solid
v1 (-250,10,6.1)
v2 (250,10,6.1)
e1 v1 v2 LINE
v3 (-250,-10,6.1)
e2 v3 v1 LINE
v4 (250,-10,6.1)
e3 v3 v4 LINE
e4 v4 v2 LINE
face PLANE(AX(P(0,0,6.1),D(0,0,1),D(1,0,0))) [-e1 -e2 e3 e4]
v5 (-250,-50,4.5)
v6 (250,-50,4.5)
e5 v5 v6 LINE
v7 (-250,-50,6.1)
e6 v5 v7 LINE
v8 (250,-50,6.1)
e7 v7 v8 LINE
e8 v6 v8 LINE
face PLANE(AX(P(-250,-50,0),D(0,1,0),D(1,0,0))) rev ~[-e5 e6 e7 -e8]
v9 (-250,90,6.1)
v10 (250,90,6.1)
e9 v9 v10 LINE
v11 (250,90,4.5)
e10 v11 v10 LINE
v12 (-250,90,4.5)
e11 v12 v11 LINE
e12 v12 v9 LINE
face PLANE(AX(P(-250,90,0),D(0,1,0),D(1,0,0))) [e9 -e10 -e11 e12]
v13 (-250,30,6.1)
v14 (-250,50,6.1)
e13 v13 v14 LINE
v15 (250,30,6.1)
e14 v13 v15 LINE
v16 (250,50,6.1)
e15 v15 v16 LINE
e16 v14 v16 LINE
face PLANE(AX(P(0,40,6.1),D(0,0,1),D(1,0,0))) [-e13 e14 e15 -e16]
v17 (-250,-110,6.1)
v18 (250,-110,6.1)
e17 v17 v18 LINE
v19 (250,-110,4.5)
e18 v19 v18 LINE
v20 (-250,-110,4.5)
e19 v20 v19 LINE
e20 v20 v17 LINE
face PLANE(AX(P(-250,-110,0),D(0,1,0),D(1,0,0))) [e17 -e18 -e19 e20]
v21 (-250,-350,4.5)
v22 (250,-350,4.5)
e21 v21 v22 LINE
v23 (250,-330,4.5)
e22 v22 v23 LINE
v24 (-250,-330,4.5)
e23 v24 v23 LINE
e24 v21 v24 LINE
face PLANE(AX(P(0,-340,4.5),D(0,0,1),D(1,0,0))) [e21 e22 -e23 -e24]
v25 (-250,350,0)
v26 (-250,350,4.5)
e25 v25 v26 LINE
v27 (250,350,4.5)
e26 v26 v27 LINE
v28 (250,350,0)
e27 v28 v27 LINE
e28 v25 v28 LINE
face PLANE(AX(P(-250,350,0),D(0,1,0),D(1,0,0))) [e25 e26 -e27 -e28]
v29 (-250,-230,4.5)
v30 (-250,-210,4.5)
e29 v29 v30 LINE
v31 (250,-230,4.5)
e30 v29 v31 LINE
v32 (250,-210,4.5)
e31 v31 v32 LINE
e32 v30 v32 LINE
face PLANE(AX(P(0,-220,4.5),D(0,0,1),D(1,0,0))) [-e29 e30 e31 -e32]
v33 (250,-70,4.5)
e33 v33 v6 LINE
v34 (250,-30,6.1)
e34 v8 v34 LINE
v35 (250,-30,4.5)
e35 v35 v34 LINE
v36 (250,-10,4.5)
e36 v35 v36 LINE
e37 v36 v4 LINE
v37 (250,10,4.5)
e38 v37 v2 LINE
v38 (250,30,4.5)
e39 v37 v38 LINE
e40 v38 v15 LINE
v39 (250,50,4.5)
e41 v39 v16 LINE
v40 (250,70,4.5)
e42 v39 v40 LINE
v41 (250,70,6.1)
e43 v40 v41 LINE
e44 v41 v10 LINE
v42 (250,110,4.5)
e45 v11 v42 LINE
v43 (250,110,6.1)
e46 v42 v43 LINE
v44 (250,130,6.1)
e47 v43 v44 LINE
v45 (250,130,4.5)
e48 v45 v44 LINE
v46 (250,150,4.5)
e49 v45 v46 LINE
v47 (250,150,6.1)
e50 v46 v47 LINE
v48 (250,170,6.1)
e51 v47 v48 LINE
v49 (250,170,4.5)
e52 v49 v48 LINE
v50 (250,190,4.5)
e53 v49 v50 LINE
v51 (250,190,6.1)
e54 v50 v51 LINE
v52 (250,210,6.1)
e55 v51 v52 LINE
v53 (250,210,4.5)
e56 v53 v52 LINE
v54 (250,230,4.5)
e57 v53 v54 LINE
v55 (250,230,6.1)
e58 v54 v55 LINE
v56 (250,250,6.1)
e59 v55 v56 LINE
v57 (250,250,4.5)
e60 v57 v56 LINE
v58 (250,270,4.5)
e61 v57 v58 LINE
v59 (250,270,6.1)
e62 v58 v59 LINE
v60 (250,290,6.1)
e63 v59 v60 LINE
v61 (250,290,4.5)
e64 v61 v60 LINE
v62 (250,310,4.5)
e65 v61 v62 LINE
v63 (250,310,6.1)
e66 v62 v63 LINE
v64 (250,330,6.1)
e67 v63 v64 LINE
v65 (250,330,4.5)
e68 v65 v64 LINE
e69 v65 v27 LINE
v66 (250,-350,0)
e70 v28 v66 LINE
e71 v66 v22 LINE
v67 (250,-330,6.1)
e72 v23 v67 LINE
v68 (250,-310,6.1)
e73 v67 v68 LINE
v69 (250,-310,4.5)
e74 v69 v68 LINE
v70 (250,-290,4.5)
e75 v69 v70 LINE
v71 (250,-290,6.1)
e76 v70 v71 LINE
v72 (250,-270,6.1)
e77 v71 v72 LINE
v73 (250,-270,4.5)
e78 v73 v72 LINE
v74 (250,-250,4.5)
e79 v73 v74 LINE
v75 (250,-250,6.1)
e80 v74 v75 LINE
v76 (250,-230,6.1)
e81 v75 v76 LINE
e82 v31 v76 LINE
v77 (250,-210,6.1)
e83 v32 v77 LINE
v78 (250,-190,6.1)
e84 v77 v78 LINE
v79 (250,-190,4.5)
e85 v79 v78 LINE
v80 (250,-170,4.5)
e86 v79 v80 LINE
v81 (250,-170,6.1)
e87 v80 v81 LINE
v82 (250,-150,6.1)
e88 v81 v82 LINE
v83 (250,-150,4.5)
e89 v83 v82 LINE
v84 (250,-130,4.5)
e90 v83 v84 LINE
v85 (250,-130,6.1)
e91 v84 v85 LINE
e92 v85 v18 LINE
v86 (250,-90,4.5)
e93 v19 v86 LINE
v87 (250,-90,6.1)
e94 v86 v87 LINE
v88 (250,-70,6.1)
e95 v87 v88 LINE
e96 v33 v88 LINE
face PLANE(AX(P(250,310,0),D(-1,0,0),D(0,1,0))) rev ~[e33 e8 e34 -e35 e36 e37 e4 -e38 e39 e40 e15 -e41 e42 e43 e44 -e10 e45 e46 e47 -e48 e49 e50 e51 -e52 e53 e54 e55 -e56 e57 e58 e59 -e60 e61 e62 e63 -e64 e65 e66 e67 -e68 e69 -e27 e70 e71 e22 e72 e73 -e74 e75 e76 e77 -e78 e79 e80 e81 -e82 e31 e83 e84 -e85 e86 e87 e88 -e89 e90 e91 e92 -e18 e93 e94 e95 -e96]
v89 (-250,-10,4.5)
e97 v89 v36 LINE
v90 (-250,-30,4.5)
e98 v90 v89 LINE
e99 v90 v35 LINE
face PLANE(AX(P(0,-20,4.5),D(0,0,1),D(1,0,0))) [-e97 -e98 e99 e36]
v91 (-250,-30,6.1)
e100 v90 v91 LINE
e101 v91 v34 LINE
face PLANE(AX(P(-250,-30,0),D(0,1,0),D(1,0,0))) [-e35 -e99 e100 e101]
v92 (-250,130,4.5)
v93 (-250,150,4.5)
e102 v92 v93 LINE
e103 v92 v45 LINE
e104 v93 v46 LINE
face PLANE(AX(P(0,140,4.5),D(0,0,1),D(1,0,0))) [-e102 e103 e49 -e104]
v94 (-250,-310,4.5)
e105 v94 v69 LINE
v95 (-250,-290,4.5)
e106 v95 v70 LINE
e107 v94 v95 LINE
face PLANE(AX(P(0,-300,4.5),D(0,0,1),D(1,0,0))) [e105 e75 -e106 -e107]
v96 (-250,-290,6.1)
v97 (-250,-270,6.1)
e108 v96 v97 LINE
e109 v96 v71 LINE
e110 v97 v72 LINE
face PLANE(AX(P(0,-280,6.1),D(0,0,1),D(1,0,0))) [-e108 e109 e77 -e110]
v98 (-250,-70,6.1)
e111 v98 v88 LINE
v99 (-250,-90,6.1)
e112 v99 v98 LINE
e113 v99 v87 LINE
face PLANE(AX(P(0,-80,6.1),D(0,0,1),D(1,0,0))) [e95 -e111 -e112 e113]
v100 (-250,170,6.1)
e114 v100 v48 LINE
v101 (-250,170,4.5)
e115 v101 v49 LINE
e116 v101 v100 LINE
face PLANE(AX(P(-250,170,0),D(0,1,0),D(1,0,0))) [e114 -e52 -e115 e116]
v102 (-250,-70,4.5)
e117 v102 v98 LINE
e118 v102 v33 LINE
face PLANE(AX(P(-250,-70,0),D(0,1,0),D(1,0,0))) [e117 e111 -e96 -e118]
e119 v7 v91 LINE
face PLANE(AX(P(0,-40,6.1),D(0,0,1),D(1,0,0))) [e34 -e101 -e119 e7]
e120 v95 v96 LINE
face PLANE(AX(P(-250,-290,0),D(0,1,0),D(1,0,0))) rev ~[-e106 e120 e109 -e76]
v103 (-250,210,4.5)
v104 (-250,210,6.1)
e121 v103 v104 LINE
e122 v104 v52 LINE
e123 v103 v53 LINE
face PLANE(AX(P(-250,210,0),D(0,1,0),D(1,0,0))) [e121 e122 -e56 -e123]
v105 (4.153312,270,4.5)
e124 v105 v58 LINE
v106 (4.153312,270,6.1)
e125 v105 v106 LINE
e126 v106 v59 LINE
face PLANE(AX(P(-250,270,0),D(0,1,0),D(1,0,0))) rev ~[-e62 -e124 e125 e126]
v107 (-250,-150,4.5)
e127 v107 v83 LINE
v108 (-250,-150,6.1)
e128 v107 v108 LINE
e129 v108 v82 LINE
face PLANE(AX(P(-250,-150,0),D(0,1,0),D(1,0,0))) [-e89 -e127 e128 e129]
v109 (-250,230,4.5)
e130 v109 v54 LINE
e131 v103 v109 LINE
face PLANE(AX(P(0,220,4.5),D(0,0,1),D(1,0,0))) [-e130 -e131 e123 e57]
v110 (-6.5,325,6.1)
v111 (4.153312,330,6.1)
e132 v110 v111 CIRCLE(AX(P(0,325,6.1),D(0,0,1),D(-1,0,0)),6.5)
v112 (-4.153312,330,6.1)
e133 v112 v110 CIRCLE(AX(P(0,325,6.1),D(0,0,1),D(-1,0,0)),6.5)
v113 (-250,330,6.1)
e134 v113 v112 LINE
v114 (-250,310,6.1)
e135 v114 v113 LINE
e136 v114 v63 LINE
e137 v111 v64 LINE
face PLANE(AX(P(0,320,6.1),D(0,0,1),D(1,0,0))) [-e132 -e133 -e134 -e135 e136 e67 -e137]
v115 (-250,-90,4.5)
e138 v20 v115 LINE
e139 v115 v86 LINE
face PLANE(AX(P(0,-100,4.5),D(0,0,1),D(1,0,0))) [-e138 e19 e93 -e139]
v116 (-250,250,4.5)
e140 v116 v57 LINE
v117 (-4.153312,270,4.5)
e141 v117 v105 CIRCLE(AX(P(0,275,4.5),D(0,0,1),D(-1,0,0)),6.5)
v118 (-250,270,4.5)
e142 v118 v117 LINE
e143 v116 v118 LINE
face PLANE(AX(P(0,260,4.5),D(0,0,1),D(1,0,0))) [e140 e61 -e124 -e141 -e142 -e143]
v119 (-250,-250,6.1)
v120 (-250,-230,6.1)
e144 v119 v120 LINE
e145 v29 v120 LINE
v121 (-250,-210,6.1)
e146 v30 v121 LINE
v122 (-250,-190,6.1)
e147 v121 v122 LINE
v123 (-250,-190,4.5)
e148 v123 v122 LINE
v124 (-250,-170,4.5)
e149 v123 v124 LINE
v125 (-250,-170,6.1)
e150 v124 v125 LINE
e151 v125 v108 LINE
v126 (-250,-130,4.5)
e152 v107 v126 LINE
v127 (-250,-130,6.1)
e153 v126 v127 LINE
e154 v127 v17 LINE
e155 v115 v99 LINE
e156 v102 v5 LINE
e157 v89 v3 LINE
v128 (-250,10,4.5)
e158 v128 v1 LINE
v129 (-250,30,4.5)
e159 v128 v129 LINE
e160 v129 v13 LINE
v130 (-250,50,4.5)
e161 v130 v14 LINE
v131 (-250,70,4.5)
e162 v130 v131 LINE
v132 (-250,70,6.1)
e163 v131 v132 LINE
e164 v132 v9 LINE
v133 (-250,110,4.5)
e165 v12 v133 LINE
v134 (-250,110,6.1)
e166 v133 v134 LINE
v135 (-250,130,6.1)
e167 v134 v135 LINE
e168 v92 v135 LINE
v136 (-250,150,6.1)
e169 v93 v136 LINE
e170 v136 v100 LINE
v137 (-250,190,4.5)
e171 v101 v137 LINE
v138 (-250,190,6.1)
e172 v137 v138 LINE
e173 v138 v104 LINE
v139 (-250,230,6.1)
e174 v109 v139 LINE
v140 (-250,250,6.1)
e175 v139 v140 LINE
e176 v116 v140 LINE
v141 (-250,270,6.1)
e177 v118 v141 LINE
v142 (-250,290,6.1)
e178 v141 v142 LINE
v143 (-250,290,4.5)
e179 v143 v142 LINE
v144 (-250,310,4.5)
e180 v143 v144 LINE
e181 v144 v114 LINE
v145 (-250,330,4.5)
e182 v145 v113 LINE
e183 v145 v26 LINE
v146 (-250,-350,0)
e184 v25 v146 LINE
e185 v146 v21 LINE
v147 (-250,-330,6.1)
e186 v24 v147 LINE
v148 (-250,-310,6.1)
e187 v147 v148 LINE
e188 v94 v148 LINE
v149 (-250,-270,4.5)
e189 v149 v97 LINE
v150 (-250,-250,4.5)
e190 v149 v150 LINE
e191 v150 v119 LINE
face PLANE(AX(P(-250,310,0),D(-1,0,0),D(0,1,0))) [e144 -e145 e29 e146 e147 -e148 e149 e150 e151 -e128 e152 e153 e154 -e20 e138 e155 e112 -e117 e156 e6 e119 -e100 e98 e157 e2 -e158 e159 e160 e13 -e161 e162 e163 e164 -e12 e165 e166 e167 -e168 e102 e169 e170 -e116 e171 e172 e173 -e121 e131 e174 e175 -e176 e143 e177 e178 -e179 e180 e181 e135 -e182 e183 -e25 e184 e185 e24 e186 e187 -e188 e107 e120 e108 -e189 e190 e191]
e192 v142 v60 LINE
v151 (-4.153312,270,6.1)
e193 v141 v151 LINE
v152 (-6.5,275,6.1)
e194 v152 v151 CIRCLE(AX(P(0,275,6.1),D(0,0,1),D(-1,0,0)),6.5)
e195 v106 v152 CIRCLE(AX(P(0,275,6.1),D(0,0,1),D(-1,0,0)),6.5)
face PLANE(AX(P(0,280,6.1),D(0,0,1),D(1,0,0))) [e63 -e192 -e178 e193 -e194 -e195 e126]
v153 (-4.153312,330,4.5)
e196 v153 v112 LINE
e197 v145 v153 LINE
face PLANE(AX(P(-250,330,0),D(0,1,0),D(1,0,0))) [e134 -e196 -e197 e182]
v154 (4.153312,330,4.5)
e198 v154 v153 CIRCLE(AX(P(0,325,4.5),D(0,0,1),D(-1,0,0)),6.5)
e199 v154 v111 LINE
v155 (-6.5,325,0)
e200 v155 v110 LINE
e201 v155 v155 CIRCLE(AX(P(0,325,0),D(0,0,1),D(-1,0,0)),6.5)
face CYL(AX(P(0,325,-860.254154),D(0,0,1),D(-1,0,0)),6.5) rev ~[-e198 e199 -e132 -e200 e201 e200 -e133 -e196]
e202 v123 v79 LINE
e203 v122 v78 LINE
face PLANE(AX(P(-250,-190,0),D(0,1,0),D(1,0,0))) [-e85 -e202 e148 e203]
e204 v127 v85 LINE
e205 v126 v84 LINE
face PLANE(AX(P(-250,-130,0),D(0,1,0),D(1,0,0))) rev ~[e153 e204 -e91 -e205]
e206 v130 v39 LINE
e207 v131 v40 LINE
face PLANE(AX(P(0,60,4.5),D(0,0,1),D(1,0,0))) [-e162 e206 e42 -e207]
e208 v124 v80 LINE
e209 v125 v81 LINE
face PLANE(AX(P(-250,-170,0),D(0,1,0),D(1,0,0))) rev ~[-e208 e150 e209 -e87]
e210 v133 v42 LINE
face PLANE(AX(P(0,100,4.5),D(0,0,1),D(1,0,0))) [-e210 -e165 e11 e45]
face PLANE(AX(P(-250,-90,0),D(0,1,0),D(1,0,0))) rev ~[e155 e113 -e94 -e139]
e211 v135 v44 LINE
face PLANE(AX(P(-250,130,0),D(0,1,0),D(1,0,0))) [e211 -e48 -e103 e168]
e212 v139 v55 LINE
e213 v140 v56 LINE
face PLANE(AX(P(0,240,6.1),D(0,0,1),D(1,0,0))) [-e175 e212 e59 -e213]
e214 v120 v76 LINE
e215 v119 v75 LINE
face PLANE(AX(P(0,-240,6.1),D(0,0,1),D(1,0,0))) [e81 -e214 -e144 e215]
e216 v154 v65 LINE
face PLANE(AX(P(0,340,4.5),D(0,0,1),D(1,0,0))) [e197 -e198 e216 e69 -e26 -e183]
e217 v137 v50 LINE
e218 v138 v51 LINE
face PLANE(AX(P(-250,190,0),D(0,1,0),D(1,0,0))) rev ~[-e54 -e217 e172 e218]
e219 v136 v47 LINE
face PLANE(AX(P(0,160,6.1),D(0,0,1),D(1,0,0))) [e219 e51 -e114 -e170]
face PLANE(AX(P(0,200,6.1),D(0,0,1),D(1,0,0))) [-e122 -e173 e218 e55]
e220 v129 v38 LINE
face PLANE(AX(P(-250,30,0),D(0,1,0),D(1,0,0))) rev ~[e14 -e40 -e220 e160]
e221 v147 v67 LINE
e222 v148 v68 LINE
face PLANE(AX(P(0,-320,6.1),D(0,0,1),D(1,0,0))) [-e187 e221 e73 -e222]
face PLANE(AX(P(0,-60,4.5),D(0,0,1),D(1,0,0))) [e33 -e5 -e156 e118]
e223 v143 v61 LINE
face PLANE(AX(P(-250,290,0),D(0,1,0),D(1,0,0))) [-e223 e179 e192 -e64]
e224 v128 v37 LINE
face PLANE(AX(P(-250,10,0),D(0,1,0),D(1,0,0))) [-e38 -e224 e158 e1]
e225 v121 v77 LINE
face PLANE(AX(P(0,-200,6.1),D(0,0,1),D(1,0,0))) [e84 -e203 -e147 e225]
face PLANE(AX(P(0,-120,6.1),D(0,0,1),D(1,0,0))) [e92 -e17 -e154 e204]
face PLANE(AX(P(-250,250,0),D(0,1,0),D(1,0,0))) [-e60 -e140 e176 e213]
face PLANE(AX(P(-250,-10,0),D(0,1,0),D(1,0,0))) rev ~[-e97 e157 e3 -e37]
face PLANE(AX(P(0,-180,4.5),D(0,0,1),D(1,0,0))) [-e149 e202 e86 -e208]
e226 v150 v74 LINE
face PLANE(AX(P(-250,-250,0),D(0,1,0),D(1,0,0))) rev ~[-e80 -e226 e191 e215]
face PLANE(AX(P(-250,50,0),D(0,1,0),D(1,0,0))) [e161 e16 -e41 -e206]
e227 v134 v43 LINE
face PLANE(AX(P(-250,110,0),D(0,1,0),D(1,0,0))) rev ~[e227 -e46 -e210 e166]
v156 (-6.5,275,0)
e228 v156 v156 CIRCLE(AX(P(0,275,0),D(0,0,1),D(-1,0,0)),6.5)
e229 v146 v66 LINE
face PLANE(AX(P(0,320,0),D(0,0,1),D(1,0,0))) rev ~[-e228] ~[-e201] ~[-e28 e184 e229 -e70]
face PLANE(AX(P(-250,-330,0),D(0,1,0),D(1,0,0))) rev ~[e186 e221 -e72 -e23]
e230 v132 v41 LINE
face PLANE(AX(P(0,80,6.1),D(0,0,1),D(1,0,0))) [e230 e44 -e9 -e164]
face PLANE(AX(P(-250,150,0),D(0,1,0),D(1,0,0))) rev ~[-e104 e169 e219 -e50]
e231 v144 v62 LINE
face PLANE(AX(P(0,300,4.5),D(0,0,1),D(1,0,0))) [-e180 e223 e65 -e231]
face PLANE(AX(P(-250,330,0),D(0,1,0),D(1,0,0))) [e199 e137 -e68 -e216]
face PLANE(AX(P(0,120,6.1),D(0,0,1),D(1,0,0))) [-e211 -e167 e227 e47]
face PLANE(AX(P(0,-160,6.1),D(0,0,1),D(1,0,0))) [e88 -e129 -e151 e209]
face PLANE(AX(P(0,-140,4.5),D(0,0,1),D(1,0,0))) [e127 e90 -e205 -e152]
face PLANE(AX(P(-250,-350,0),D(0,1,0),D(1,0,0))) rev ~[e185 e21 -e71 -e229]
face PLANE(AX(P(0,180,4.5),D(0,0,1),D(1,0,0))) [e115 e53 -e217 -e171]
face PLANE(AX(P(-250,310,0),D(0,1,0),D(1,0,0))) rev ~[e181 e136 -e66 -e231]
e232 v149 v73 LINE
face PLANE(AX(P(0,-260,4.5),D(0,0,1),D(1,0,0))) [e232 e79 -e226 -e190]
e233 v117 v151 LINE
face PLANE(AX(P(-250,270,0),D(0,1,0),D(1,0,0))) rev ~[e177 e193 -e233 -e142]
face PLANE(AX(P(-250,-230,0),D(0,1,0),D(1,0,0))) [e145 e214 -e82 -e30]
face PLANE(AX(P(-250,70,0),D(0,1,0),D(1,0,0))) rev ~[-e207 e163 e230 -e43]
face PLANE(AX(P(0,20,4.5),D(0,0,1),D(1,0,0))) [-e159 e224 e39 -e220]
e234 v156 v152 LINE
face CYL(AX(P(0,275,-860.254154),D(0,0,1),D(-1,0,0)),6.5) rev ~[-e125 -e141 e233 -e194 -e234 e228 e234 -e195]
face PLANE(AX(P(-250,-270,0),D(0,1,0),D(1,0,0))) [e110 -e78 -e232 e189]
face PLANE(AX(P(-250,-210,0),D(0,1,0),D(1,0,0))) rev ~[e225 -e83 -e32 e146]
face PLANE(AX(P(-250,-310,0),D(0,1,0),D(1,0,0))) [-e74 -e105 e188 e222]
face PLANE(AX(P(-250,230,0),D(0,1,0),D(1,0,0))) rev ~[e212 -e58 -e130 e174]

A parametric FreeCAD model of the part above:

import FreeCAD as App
import Part
import Sketcher
Q = App.Units.Quantity


def add_polygon(sketch, points):
    """Adds a closed chain of lines whose ends are joined by coincident constraints."""
    first, n = sketch.GeometryCount, len(points)
    for a, b in zip(points, points[1:] + points[:1]):
        sketch.addGeometry(Part.LineSegment(App.Vector(*a, 0), App.Vector(*b, 0)), False)
    for i in range(n):
        sketch.addConstraint(Sketcher.Constraint("Coincident", first + i, 2, first + (i + 1) % n, 1))

doc = App.newDocument("Part")
params = doc.addObject("Spreadsheet::Sheet", "Params")
for row, (alias, value) in enumerate([
    ("sketch1_width", "500 mm"),
    ("sketch1_height", "20 mm"),
    ("pad1_length", "4.5 mm"),
    ("sketch2_width", "500 mm"),
    ("sketch2_height", "20 mm"),
    ("pad2_length", "4.5 mm"),
    ("sketch3_width", "500 mm"),
    ("sketch3_height", "20 mm"),
    ("pad3_length", "4.5 mm"),
    ("sketch4_width", "500 mm"),
    ("sketch4_height", "20 mm"),
    ("pad4_length", "4.5 mm"),
    ("sketch5_width", "500 mm"),
    ("sketch5_height", "20 mm"),
    ("pad5_length", "4.5 mm"),
    ("sketch6_width", "500 mm"),
    ("sketch6_height", "20 mm"),
    ("pad6_length", "4.5 mm"),
    ("sketch7_width", "500 mm"),
    ("sketch7_height", "20 mm"),
    ("pad7_length", "4.5 mm"),
    ("sketch8_width", "500 mm"),
    ("sketch8_height", "20 mm"),
    ("pad8_length", "4.5 mm"),
    ("sketch9_width", "500 mm"),
    ("sketch9_height", "20 mm"),
    ("pad9_length", "4.5 mm"),
    ("sketch10_width", "500 mm"),
    ("sketch10_height", "20 mm"),
    ("pad10_length", "4.5 mm"),
    ("sketch11_width", "500 mm"),
    ("sketch11_height", "20 mm"),
    ("pad11_length", "4.5 mm"),
    ("sketch12_width", "500 mm"),
    ("sketch12_height", "20 mm"),
    ("pad12_length", "4.5 mm"),
    ("sketch13_width", "500 mm"),
    ("sketch13_height", "20 mm"),
    ("pad13_length", "4.5 mm"),
    ("sketch14_width", "500 mm"),
    ("sketch14_height", "20 mm"),
    ("pad14_length", "4.5 mm"),
    ("sketch15_width", "500 mm"),
    ("sketch15_height", "20 mm"),
    ("pad15_length", "4.5 mm"),
    ("sketch16_width", "500 mm"),
    ("sketch16_height", "20 mm"),
    ("pad16_length", "4.5 mm"),
    ("sketch17_width", "500 mm"),
    ("sketch17_height", "20 mm"),
    ("pad17_length", "4.5 mm"),
    ("sketch18_width", "500 mm"),
    ("sketch18_height", "20 mm"),
    ("pad18_length", "4.5 mm"),
    ("sketch19_width", "500 mm"),
    ("sketch19_height", "20 mm"),
    ("pad19_length", "6.1 mm"),
    ("sketch20_diameter", "13 mm"),
    ("hole_diameter", "13 mm"),
], start=1):
    params.set(f"A{row}", alias)
    params.set(f"B{row}", "=" + value)
    params.setAlias(f"B{row}", alias)

body = doc.addObject("PartDesign::Body", "Body")

# Sketch on XY plane
sketch1 = doc.addObject("Sketcher::SketchObject", "Sketch")
body.addObject(sketch1)
sketch1.AttachmentSupport = (doc.XY_Plane, [""])
sketch1.MapMode = "FlatFace"
add_polygon(sketch1, [(-250, 350), (-250, 330), (250, 330), (250, 350)])  # lines 0-3
sketch1.addConstraint(Sketcher.Constraint("Vertical", 0))
sketch1.addConstraint(Sketcher.Constraint("Horizontal", 1))
sketch1.addConstraint(Sketcher.Constraint("Vertical", 2))
sketch1.addConstraint(Sketcher.Constraint("Horizontal", 3))
sketch1.addConstraint(Sketcher.Constraint("DistanceX", 1, 1, 1, 2, Q("500 mm")))
sketch1.addConstraint(Sketcher.Constraint("DistanceY", 0, 2, 0, 1, Q("20 mm")))
sketch1.addConstraint(Sketcher.Constraint("DistanceX", 0, 2, -1, 1, Q("250 mm")))
sketch1.addConstraint(Sketcher.Constraint("DistanceY", -1, 1, 0, 2, Q("330 mm")))
sketch1.setExpression("Constraints[8]", "Params.sketch1_width")
sketch1.setExpression("Constraints[9]", "Params.sketch1_height")
pad1 = doc.addObject("PartDesign::Pad", "Pad")
body.addObject(pad1)
pad1.Profile = sketch1
pad1.setExpression("Length", "Params.pad1_length")
body2 = doc.addObject("PartDesign::Body", "Body001")

# Sketch on XY plane
sketch2 = doc.addObject("Sketcher::SketchObject", "Sketch001")
body2.addObject(sketch2)
sketch2.AttachmentSupport = (doc.getObject("XY_Plane001"), [""])
sketch2.MapMode = "FlatFace"
add_polygon(sketch2, [(-250, 310), (-250, 290), (250, 290), (250, 310)])  # lines 0-3
sketch2.addConstraint(Sketcher.Constraint("Vertical", 0))
sketch2.addConstraint(Sketcher.Constraint("Horizontal", 1))
sketch2.addConstraint(Sketcher.Constraint("Vertical", 2))
sketch2.addConstraint(Sketcher.Constraint("Horizontal", 3))
sketch2.addConstraint(Sketcher.Constraint("DistanceX", 1, 1, 1, 2, Q("500 mm")))
sketch2.addConstraint(Sketcher.Constraint("DistanceY", 0, 2, 0, 1, Q("20 mm")))
sketch2.addConstraint(Sketcher.Constraint("DistanceX", 0, 2, -1, 1, Q("250 mm")))
sketch2.addConstraint(Sketcher.Constraint("DistanceY", -1, 1, 0, 2, Q("290 mm")))
sketch2.setExpression("Constraints[8]", "Params.sketch2_width")
sketch2.setExpression("Constraints[9]", "Params.sketch2_height")
pad2 = doc.addObject("PartDesign::Pad", "Pad001")
body2.addObject(pad2)
pad2.Profile = sketch2
pad2.setExpression("Length", "Params.pad2_length")
body3 = doc.addObject("PartDesign::Body", "Body002")

# Sketch on XY plane
sketch3 = doc.addObject("Sketcher::SketchObject", "Sketch002")
body3.addObject(sketch3)
sketch3.AttachmentSupport = (doc.getObject("XY_Plane002"), [""])
sketch3.MapMode = "FlatFace"
add_polygon(sketch3, [(-250, 270), (-250, 250), (250, 250), (250, 270)])  # lines 0-3
sketch3.addConstraint(Sketcher.Constraint("Vertical", 0))
sketch3.addConstraint(Sketcher.Constraint("Horizontal", 1))
sketch3.addConstraint(Sketcher.Constraint("Vertical", 2))
sketch3.addConstraint(Sketcher.Constraint("Horizontal", 3))
sketch3.addConstraint(Sketcher.Constraint("DistanceX", 1, 1, 1, 2, Q("500 mm")))
sketch3.addConstraint(Sketcher.Constraint("DistanceY", 0, 2, 0, 1, Q("20 mm")))
sketch3.addConstraint(Sketcher.Constraint("DistanceX", 0, 2, -1, 1, Q("250 mm")))
sketch3.addConstraint(Sketcher.Constraint("DistanceY", -1, 1, 0, 2, Q("250 mm")))
sketch3.setExpression("Constraints[8]", "Params.sketch3_width")
sketch3.setExpression("Constraints[9]", "Params.sketch3_height")
pad3 = doc.addObject("PartDesign::Pad", "Pad002")
body3.addObject(pad3)
pad3.Profile = sketch3
pad3.setExpression("Length", "Params.pad3_length")
body4 = doc.addObject("PartDesign::Body", "Body003")

# Sketch on XY plane
sketch4 = doc.addObject("Sketcher::SketchObject", "Sketch003")
body4.addObject(sketch4)
sketch4.AttachmentSupport = (doc.getObject("XY_Plane003"), [""])
sketch4.MapMode = "FlatFace"
add_polygon(sketch4, [(-250, 230), (-250, 210), (250, 210), (250, 230)])  # lines 0-3
sketch4.addConstraint(Sketcher.Constraint("Vertical", 0))
sketch4.addConstraint(Sketcher.Constraint("Horizontal", 1))
sketch4.addConstraint(Sketcher.Constraint("Vertical", 2))
sketch4.addConstraint(Sketcher.Constraint("Horizontal", 3))
sketch4.addConstraint(Sketcher.Constraint("DistanceX", 1, 1, 1, 2, Q("500 mm")))
sketch4.addConstraint(Sketcher.Constraint("DistanceY", 0, 2, 0, 1, Q("20 mm")))
sketch4.addConstraint(Sketcher.Constraint("DistanceX", 0, 2, -1, 1, Q("250 mm")))
sketch4.addConstraint(Sketcher.Constraint("DistanceY", -1, 1, 0, 2, Q("210 mm")))
sketch4.setExpression("Constraints[8]", "Params.sketch4_width")
sketch4.setExpression("Constraints[9]", "Params.sketch4_height")
pad4 = doc.addObject("PartDesign::Pad", "Pad003")
body4.addObject(pad4)
pad4.Profile = sketch4
pad4.setExpression("Length", "Params.pad4_length")
body5 = doc.addObject("PartDesign::Body", "Body004")

# Sketch on XY plane
sketch5 = doc.addObject("Sketcher::SketchObject", "Sketch004")
body5.addObject(sketch5)
sketch5.AttachmentSupport = (doc.getObject("XY_Plane004"), [""])
sketch5.MapMode = "FlatFace"
add_polygon(sketch5, [(-250, 190), (-250, 170), (250, 170), (250, 190)])  # lines 0-3
sketch5.addConstraint(Sketcher.Constraint("Vertical", 0))
sketch5.addConstraint(Sketcher.Constraint("Horizontal", 1))
sketch5.addConstraint(Sketcher.Constraint("Vertical", 2))
sketch5.addConstraint(Sketcher.Constraint("Horizontal", 3))
sketch5.addConstraint(Sketcher.Constraint("DistanceX", 1, 1, 1, 2, Q("500 mm")))
sketch5.addConstraint(Sketcher.Constraint("DistanceY", 0, 2, 0, 1, Q("20 mm")))
sketch5.addConstraint(Sketcher.Constraint("DistanceX", 0, 2, -1, 1, Q("250 mm")))
sketch5.addConstraint(Sketcher.Constraint("DistanceY", -1, 1, 0, 2, Q("170 mm")))
sketch5.setExpression("Constraints[8]", "Params.sketch5_width")
sketch5.setExpression("Constraints[9]", "Params.sketch5_height")
pad5 = doc.addObject("PartDesign::Pad", "Pad004")
body5.addObject(pad5)
pad5.Profile = sketch5
pad5.setExpression("Length", "Params.pad5_length")
body6 = doc.addObject("PartDesign::Body", "Body005")

# Sketch on XY plane
sketch6 = doc.addObject("Sketcher::SketchObject", "Sketch005")
body6.addObject(sketch6)
sketch6.AttachmentSupport = (doc.getObject("XY_Plane005"), [""])
sketch6.MapMode = "FlatFace"
add_polygon(sketch6, [(-250, 150), (-250, 130), (250, 130), (250, 150)])  # lines 0-3
sketch6.addConstraint(Sketcher.Constraint("Vertical", 0))
sketch6.addConstraint(Sketcher.Constraint("Horizontal", 1))
sketch6.addConstraint(Sketcher.Constraint("Vertical", 2))
sketch6.addConstraint(Sketcher.Constraint("Horizontal", 3))
sketch6.addConstraint(Sketcher.Constraint("DistanceX", 1, 1, 1, 2, Q("500 mm")))
sketch6.addConstraint(Sketcher.Constraint("DistanceY", 0, 2, 0, 1, Q("20 mm")))
sketch6.addConstraint(Sketcher.Constraint("DistanceX", 0, 2, -1, 1, Q("250 mm")))
sketch6.addConstraint(Sketcher.Constraint("DistanceY", -1, 1, 0, 2, Q("130 mm")))
sketch6.setExpression("Constraints[8]", "Params.sketch6_width")
sketch6.setExpression("Constraints[9]", "Params.sketch6_height")
pad6 = doc.addObject("PartDesign::Pad", "Pad005")
body6.addObject(pad6)
pad6.Profile = sketch6
pad6.setExpression("Length", "Params.pad6_length")
body7 = doc.addObject("PartDesign::Body", "Body006")

# Sketch on XY plane
sketch7 = doc.addObject("Sketcher::SketchObject", "Sketch006")
body7.addObject(sketch7)
sketch7.AttachmentSupport = (doc.getObject("XY_Plane006"), [""])
sketch7.MapMode = "FlatFace"
add_polygon(sketch7, [(-250, 110), (-250, 90), (250, 90), (250, 110)])  # lines 0-3
sketch7.addConstraint(Sketcher.Constraint("Vertical", 0))
sketch7.addConstraint(Sketcher.Constraint("Horizontal", 1))
sketch7.addConstraint(Sketcher.Constraint("Vertical", 2))
sketch7.addConstraint(Sketcher.Constraint("Horizontal", 3))
sketch7.addConstraint(Sketcher.Constraint("DistanceX", 1, 1, 1, 2, Q("500 mm")))
sketch7.addConstraint(Sketcher.Constraint("DistanceY", 0, 2, 0, 1, Q("20 mm")))
sketch7.addConstraint(Sketcher.Constraint("DistanceX", 0, 2, -1, 1, Q("250 mm")))
sketch7.addConstraint(Sketcher.Constraint("DistanceY", -1, 1, 0, 2, Q("90 mm")))
sketch7.setExpression("Constraints[8]", "Params.sketch7_width")
sketch7.setExpression("Constraints[9]", "Params.sketch7_height")
pad7 = doc.addObject("PartDesign::Pad", "Pad006")
body7.addObject(pad7)
pad7.Profile = sketch7
pad7.setExpression("Length", "Params.pad7_length")
body8 = doc.addObject("PartDesign::Body", "Body007")

# Sketch on XY plane
sketch8 = doc.addObject("Sketcher::SketchObject", "Sketch007")
body8.addObject(sketch8)
sketch8.AttachmentSupport = (doc.getObject("XY_Plane007"), [""])
sketch8.MapMode = "FlatFace"
add_polygon(sketch8, [(-250, 70), (-250, 50), (250, 50), (250, 70)])  # lines 0-3
sketch8.addConstraint(Sketcher.Constraint("Vertical", 0))
sketch8.addConstraint(Sketcher.Constraint("Horizontal", 1))
sketch8.addConstraint(Sketcher.Constraint("Vertical", 2))
sketch8.addConstraint(Sketcher.Constraint("Horizontal", 3))
sketch8.addConstraint(Sketcher.Constraint("DistanceX", 1, 1, 1, 2, Q("500 mm")))
sketch8.addConstraint(Sketcher.Constraint("DistanceY", 0, 2, 0, 1, Q("20 mm")))
sketch8.addConstraint(Sketcher.Constraint("DistanceX", 0, 2, -1, 1, Q("250 mm")))
sketch8.addConstraint(Sketcher.Constraint("DistanceY", -1, 1, 0, 2, Q("50 mm")))
sketch8.setExpression("Constraints[8]", "Params.sketch8_width")
sketch8.setExpression("Constraints[9]", "Params.sketch8_height")
pad8 = doc.addObject("PartDesign::Pad", "Pad007")
body8.addObject(pad8)
pad8.Profile = sketch8
pad8.setExpression("Length", "Params.pad8_length")
body9 = doc.addObject("PartDesign::Body", "Body008")

# Sketch on XY plane
sketch9 = doc.addObject("Sketcher::SketchObject", "Sketch008")
body9.addObject(sketch9)
sketch9.AttachmentSupport = (doc.getObject("XY_Plane008"), [""])
sketch9.MapMode = "FlatFace"
add_polygon(sketch9, [(-250, 30), (-250, 10), (250, 10), (250, 30)])  # lines 0-3
sketch9.addConstraint(Sketcher.Constraint("Vertical", 0))
sketch9.addConstraint(Sketcher.Constraint("Horizontal", 1))
sketch9.addConstraint(Sketcher.Constraint("Vertical", 2))
sketch9.addConstraint(Sketcher.Constraint("Horizontal", 3))
sketch9.addConstraint(Sketcher.Constraint("DistanceX", 1, 1, 1, 2, Q("500 mm")))
sketch9.addConstraint(Sketcher.Constraint("DistanceY", 0, 2, 0, 1, Q("20 mm")))
sketch9.addConstraint(Sketcher.Constraint("DistanceX", 0, 2, -1, 1, Q("250 mm")))
sketch9.addConstraint(Sketcher.Constraint("DistanceY", -1, 1, 0, 2, Q("10 mm")))
sketch9.setExpression("Constraints[8]", "Params.sketch9_width")
sketch9.setExpression("Constraints[9]", "Params.sketch9_height")
pad9 = doc.addObject("PartDesign::Pad", "Pad008")
body9.addObject(pad9)
pad9.Profile = sketch9
pad9.setExpression("Length", "Params.pad9_length")
body10 = doc.addObject("PartDesign::Body", "Body009")

# Sketch on XY plane
sketch10 = doc.addObject("Sketcher::SketchObject", "Sketch009")
body10.addObject(sketch10)
sketch10.AttachmentSupport = (doc.getObject("XY_Plane009"), [""])
sketch10.MapMode = "FlatFace"
add_polygon(sketch10, [(-250, -10), (-250, -30), (250, -30), (250, -10)])  # lines 0-3
sketch10.addConstraint(Sketcher.Constraint("Vertical", 0))
sketch10.addConstraint(Sketcher.Constraint("Horizontal", 1))
sketch10.addConstraint(Sketcher.Constraint("Vertical", 2))
sketch10.addConstraint(Sketcher.Constraint("Horizontal", 3))
sketch10.addConstraint(Sketcher.Constraint("DistanceX", 1, 1, 1, 2, Q("500 mm")))
sketch10.addConstraint(Sketcher.Constraint("DistanceY", 0, 2, 0, 1, Q("20 mm")))
sketch10.addConstraint(Sketcher.Constraint("DistanceX", 0, 2, -1, 1, Q("250 mm")))
sketch10.addConstraint(Sketcher.Constraint("DistanceY", 0, 2, -1, 1, Q("30 mm")))
sketch10.setExpression("Constraints[8]", "Params.sketch10_width")
sketch10.setExpression("Constraints[9]", "Params.sketch10_height")
pad10 = doc.addObject("PartDesign::Pad", "Pad009")
body10.addObject(pad10)
pad10.Profile = sketch10
pad10.setExpression("Length", "Params.pad10_length")
body11 = doc.addObject("PartDesign::Body", "Body010")

# Sketch on XY plane
sketch11 = doc.addObject("Sketcher::SketchObject", "Sketch010")
body11.addObject(sketch11)
sketch11.AttachmentSupport = (doc.getObject("XY_Plane010"), [""])
sketch11.MapMode = "FlatFace"
add_polygon(sketch11, [(-250, -50), (-250, -70), (250, -70), (250, -50)])  # lines 0-3
sketch11.addConstraint(Sketcher.Constraint("Vertical", 0))
sketch11.addConstraint(Sketcher.Constraint("Horizontal", 1))
sketch11.addConstraint(Sketcher.Constraint("Vertical", 2))
sketch11.addConstraint(Sketcher.Constraint("Horizontal", 3))
sketch11.addConstraint(Sketcher.Constraint("DistanceX", 1, 1, 1, 2, Q("500 mm")))
sketch11.addConstraint(Sketcher.Constraint("DistanceY", 0, 2, 0, 1, Q("20 mm")))
sketch11.addConstraint(Sketcher.Constraint("DistanceX", 0, 2, -1, 1, Q("250 mm")))
sketch11.addConstraint(Sketcher.Constraint("DistanceY", 0, 2, -1, 1, Q("70 mm")))
sketch11.setExpression("Constraints[8]", "Params.sketch11_width")
sketch11.setExpression("Constraints[9]", "Params.sketch11_height")
pad11 = doc.addObject("PartDesign::Pad", "Pad010")
body11.addObject(pad11)
pad11.Profile = sketch11
pad11.setExpression("Length", "Params.pad11_length")
body12 = doc.addObject("PartDesign::Body", "Body011")

# Sketch on XY plane
sketch12 = doc.addObject("Sketcher::SketchObject", "Sketch011")
body12.addObject(sketch12)
sketch12.AttachmentSupport = (doc.getObject("XY_Plane011"), [""])
sketch12.MapMode = "FlatFace"
add_polygon(sketch12, [(-250, -90), (-250, -110), (250, -110), (250, -90)])  # lines 0-3
sketch12.addConstraint(Sketcher.Constraint("Vertical", 0))
sketch12.addConstraint(Sketcher.Constraint("Horizontal", 1))
sketch12.addConstraint(Sketcher.Constraint("Vertical", 2))
sketch12.addConstraint(Sketcher.Constraint("Horizontal", 3))
sketch12.addConstraint(Sketcher.Constraint("DistanceX", 1, 1, 1, 2, Q("500 mm")))
sketch12.addConstraint(Sketcher.Constraint("DistanceY", 0, 2, 0, 1, Q("20 mm")))
sketch12.addConstraint(Sketcher.Constraint("DistanceX", 0, 2, -1, 1, Q("250 mm")))
sketch12.addConstraint(Sketcher.Constraint("DistanceY", 0, 2, -1, 1, Q("110 mm")))
sketch12.setExpression("Constraints[8]", "Params.sketch12_width")
sketch12.setExpression("Constraints[9]", "Params.sketch12_height")
pad12 = doc.addObject("PartDesign::Pad", "Pad011")
body12.addObject(pad12)
pad12.Profile = sketch12
pad12.setExpression("Length", "Params.pad12_length")
body13 = doc.addObject("PartDesign::Body", "Body012")

# Sketch on XY plane
sketch13 = doc.addObject("Sketcher::SketchObject", "Sketch012")
body13.addObject(sketch13)
sketch13.AttachmentSupport = (doc.getObject("XY_Plane012"), [""])
sketch13.MapMode = "FlatFace"
add_polygon(sketch13, [(-250, -130), (-250, -150), (250, -150), (250, -130)])  # lines 0-3
sketch13.addConstraint(Sketcher.Constraint("Vertical", 0))
sketch13.addConstraint(Sketcher.Constraint("Horizontal", 1))
sketch13.addConstraint(Sketcher.Constraint("Vertical", 2))
sketch13.addConstraint(Sketcher.Constraint("Horizontal", 3))
sketch13.addConstraint(Sketcher.Constraint("DistanceX", 1, 1, 1, 2, Q("500 mm")))
sketch13.addConstraint(Sketcher.Constraint("DistanceY", 0, 2, 0, 1, Q("20 mm")))
sketch13.addConstraint(Sketcher.Constraint("DistanceX", 0, 2, -1, 1, Q("250 mm")))
sketch13.addConstraint(Sketcher.Constraint("DistanceY", 0, 2, -1, 1, Q("150 mm")))
sketch13.setExpression("Constraints[8]", "Params.sketch13_width")
sketch13.setExpression("Constraints[9]", "Params.sketch13_height")
pad13 = doc.addObject("PartDesign::Pad", "Pad012")
body13.addObject(pad13)
pad13.Profile = sketch13
pad13.setExpression("Length", "Params.pad13_length")
body14 = doc.addObject("PartDesign::Body", "Body013")

# Sketch on XY plane
sketch14 = doc.addObject("Sketcher::SketchObject", "Sketch013")
body14.addObject(sketch14)
sketch14.AttachmentSupport = (doc.getObject("XY_Plane013"), [""])
sketch14.MapMode = "FlatFace"
add_polygon(sketch14, [(-250, -170), (-250, -190), (250, -190), (250, -170)])  # lines 0-3
sketch14.addConstraint(Sketcher.Constraint("Vertical", 0))
sketch14.addConstraint(Sketcher.Constraint("Horizontal", 1))
sketch14.addConstraint(Sketcher.Constraint("Vertical", 2))
sketch14.addConstraint(Sketcher.Constraint("Horizontal", 3))
sketch14.addConstraint(Sketcher.Constraint("DistanceX", 1, 1, 1, 2, Q("500 mm")))
sketch14.addConstraint(Sketcher.Constraint("DistanceY", 0, 2, 0, 1, Q("20 mm")))
sketch14.addConstraint(Sketcher.Constraint("DistanceX", 0, 2, -1, 1, Q("250 mm")))
sketch14.addConstraint(Sketcher.Constraint("DistanceY", 0, 2, -1, 1, Q("190 mm")))
sketch14.setExpression("Constraints[8]", "Params.sketch14_width")
sketch14.setExpression("Constraints[9]", "Params.sketch14_height")
pad14 = doc.addObject("PartDesign::Pad", "Pad013")
body14.addObject(pad14)
pad14.Profile = sketch14
pad14.setExpression("Length", "Params.pad14_length")
body15 = doc.addObject("PartDesign::Body", "Body014")

# Sketch on XY plane
sketch15 = doc.addObject("Sketcher::SketchObject", "Sketch014")
body15.addObject(sketch15)
sketch15.AttachmentSupport = (doc.getObject("XY_Plane014"), [""])
sketch15.MapMode = "FlatFace"
add_polygon(sketch15, [(-250, -210), (-250, -230), (250, -230), (250, -210)])  # lines 0-3
sketch15.addConstraint(Sketcher.Constraint("Vertical", 0))
sketch15.addConstraint(Sketcher.Constraint("Horizontal", 1))
sketch15.addConstraint(Sketcher.Constraint("Vertical", 2))
sketch15.addConstraint(Sketcher.Constraint("Horizontal", 3))
sketch15.addConstraint(Sketcher.Constraint("DistanceX", 1, 1, 1, 2, Q("500 mm")))
sketch15.addConstraint(Sketcher.Constraint("DistanceY", 0, 2, 0, 1, Q("20 mm")))
sketch15.addConstraint(Sketcher.Constraint("DistanceX", 0, 2, -1, 1, Q("250 mm")))
sketch15.addConstraint(Sketcher.Constraint("DistanceY", 0, 2, -1, 1, Q("230 mm")))
sketch15.setExpression("Constraints[8]", "Params.sketch15_width")
sketch15.setExpression("Constraints[9]", "Params.sketch15_height")
pad15 = doc.addObject("PartDesign::Pad", "Pad014")
body15.addObject(pad15)
pad15.Profile = sketch15
pad15.setExpression("Length", "Params.pad15_length")
body16 = doc.addObject("PartDesign::Body", "Body015")

# Sketch on XY plane
sketch16 = doc.addObject("Sketcher::SketchObject", "Sketch015")
body16.addObject(sketch16)
sketch16.AttachmentSupport = (doc.getObject("XY_Plane015"), [""])
sketch16.MapMode = "FlatFace"
add_polygon(sketch16, [(-250, -250), (-250, -270), (250, -270), (250, -250)])  # lines 0-3
sketch16.addConstraint(Sketcher.Constraint("Vertical", 0))
sketch16.addConstraint(Sketcher.Constraint("Horizontal", 1))
sketch16.addConstraint(Sketcher.Constraint("Vertical", 2))
sketch16.addConstraint(Sketcher.Constraint("Horizontal", 3))
sketch16.addConstraint(Sketcher.Constraint("DistanceX", 1, 1, 1, 2, Q("500 mm")))
sketch16.addConstraint(Sketcher.Constraint("DistanceY", 0, 2, 0, 1, Q("20 mm")))
sketch16.addConstraint(Sketcher.Constraint("DistanceX", 0, 2, -1, 1, Q("250 mm")))
sketch16.addConstraint(Sketcher.Constraint("DistanceY", 0, 2, -1, 1, Q("270 mm")))
sketch16.setExpression("Constraints[8]", "Params.sketch16_width")
sketch16.setExpression("Constraints[9]", "Params.sketch16_height")
pad16 = doc.addObject("PartDesign::Pad", "Pad015")
body16.addObject(pad16)
pad16.Profile = sketch16
pad16.setExpression("Length", "Params.pad16_length")
body17 = doc.addObject("PartDesign::Body", "Body016")

# Sketch on XY plane
sketch17 = doc.addObject("Sketcher::SketchObject", "Sketch016")
body17.addObject(sketch17)
sketch17.AttachmentSupport = (doc.getObject("XY_Plane016"), [""])
sketch17.MapMode = "FlatFace"
add_polygon(sketch17, [(-250, -290), (-250, -310), (250, -310), (250, -290)])  # lines 0-3
sketch17.addConstraint(Sketcher.Constraint("Vertical", 0))
sketch17.addConstraint(Sketcher.Constraint("Horizontal", 1))
sketch17.addConstraint(Sketcher.Constraint("Vertical", 2))
sketch17.addConstraint(Sketcher.Constraint("Horizontal", 3))
sketch17.addConstraint(Sketcher.Constraint("DistanceX", 1, 1, 1, 2, Q("500 mm")))
sketch17.addConstraint(Sketcher.Constraint("DistanceY", 0, 2, 0, 1, Q("20 mm")))
sketch17.addConstraint(Sketcher.Constraint("DistanceX", 0, 2, -1, 1, Q("250 mm")))
sketch17.addConstraint(Sketcher.Constraint("DistanceY", 0, 2, -1, 1, Q("310 mm")))
sketch17.setExpression("Constraints[8]", "Params.sketch17_width")
sketch17.setExpression("Constraints[9]", "Params.sketch17_height")
pad17 = doc.addObject("PartDesign::Pad", "Pad016")
body17.addObject(pad17)
pad17.Profile = sketch17
pad17.setExpression("Length", "Params.pad17_length")
body18 = doc.addObject("PartDesign::Body", "Body017")

# Sketch on XY plane
sketch18 = doc.addObject("Sketcher::SketchObject", "Sketch017")
body18.addObject(sketch18)
sketch18.AttachmentSupport = (doc.getObject("XY_Plane017"), [""])
sketch18.MapMode = "FlatFace"
add_polygon(sketch18, [(-250, -330), (-250, -350), (250, -350), (250, -330)])  # lines 0-3
sketch18.addConstraint(Sketcher.Constraint("Vertical", 0))
sketch18.addConstraint(Sketcher.Constraint("Horizontal", 1))
sketch18.addConstraint(Sketcher.Constraint("Vertical", 2))
sketch18.addConstraint(Sketcher.Constraint("Horizontal", 3))
sketch18.addConstraint(Sketcher.Constraint("DistanceX", 1, 1, 1, 2, Q("500 mm")))
sketch18.addConstraint(Sketcher.Constraint("DistanceY", 0, 2, 0, 1, Q("20 mm")))
sketch18.addConstraint(Sketcher.Constraint("DistanceX", 0, 2, -1, 1, Q("250 mm")))
sketch18.addConstraint(Sketcher.Constraint("DistanceY", 0, 2, -1, 1, Q("350 mm")))
sketch18.setExpression("Constraints[8]", "Params.sketch18_width")
sketch18.setExpression("Constraints[9]", "Params.sketch18_height")
pad18 = doc.addObject("PartDesign::Pad", "Pad017")
body18.addObject(pad18)
pad18.Profile = sketch18
pad18.setExpression("Length", "Params.pad18_length")
body.AllowCompound = True
doc.recompute()

boolean = doc.addObject("PartDesign::Boolean", "Boolean")
body.addObject(boolean)
boolean.Type = "Fuse"
boolean.addObjects([body2])
doc.recompute()

boolean2 = doc.addObject("PartDesign::Boolean", "Boolean001")
body.addObject(boolean2)
boolean2.Type = "Fuse"
boolean2.addObjects([body3])
doc.recompute()

boolean3 = doc.addObject("PartDesign::Boolean", "Boolean002")
body.addObject(boolean3)
boolean3.Type = "Fuse"
boolean3.addObjects([body4])
doc.recompute()

boolean4 = doc.addObject("PartDesign::Boolean", "Boolean003")
body.addObject(boolean4)
boolean4.Type = "Fuse"
boolean4.addObjects([body5])
doc.recompute()

boolean5 = doc.addObject("PartDesign::Boolean", "Boolean004")
body.addObject(boolean5)
boolean5.Type = "Fuse"
boolean5.addObjects([body6])
doc.recompute()

boolean6 = doc.addObject("PartDesign::Boolean", "Boolean005")
body.addObject(boolean6)
boolean6.Type = "Fuse"
boolean6.addObjects([body7])
doc.recompute()

boolean7 = doc.addObject("PartDesign::Boolean", "Boolean006")
body.addObject(boolean7)
boolean7.Type = "Fuse"
boolean7.addObjects([body8])
doc.recompute()

boolean8 = doc.addObject("PartDesign::Boolean", "Boolean007")
body.addObject(boolean8)
boolean8.Type = "Fuse"
boolean8.addObjects([body9])
doc.recompute()

boolean9 = doc.addObject("PartDesign::Boolean", "Boolean008")
body.addObject(boolean9)
boolean9.Type = "Fuse"
boolean9.addObjects([body10])
doc.recompute()

boolean10 = doc.addObject("PartDesign::Boolean", "Boolean009")
body.addObject(boolean10)
boolean10.Type = "Fuse"
boolean10.addObjects([body11])
doc.recompute()

boolean11 = doc.addObject("PartDesign::Boolean", "Boolean010")
body.addObject(boolean11)
boolean11.Type = "Fuse"
boolean11.addObjects([body12])
doc.recompute()

boolean12 = doc.addObject("PartDesign::Boolean", "Boolean011")
body.addObject(boolean12)
boolean12.Type = "Fuse"
boolean12.addObjects([body13])
doc.recompute()

boolean13 = doc.addObject("PartDesign::Boolean", "Boolean012")
body.addObject(boolean13)
boolean13.Type = "Fuse"
boolean13.addObjects([body14])
doc.recompute()

boolean14 = doc.addObject("PartDesign::Boolean", "Boolean013")
body.addObject(boolean14)
boolean14.Type = "Fuse"
boolean14.addObjects([body15])
doc.recompute()

boolean15 = doc.addObject("PartDesign::Boolean", "Boolean014")
body.addObject(boolean15)
boolean15.Type = "Fuse"
boolean15.addObjects([body16])
doc.recompute()

boolean16 = doc.addObject("PartDesign::Boolean", "Boolean015")
body.addObject(boolean16)
boolean16.Type = "Fuse"
boolean16.addObjects([body17])
doc.recompute()

boolean17 = doc.addObject("PartDesign::Boolean", "Boolean016")
body.addObject(boolean17)
boolean17.Type = "Fuse"
boolean17.addObjects([body18])

# Sketch on XY plane
sketch19 = doc.addObject("Sketcher::SketchObject", "Sketch018")
body.addObject(sketch19)
sketch19.AttachmentSupport = (doc.XY_Plane, [""])
sketch19.MapMode = "FlatFace"
add_polygon(sketch19, [(-250, 330), (-250, 310), (250, 310), (250, 330)])  # lines 0-3
add_polygon(sketch19, [(-250, 290), (-250, 270), (250, 270), (250, 290)])  # lines 4-7
add_polygon(sketch19, [(-250, 250), (-250, 230), (250, 230), (250, 250)])  # lines 8-11
add_polygon(sketch19, [(-250, 210), (-250, 190), (250, 190), (250, 210)])  # lines 12-15
add_polygon(sketch19, [(-250, 170), (-250, 150), (250, 150), (250, 170)])  # lines 16-19
add_polygon(sketch19, [(-250, 130), (-250, 110), (250, 110), (250, 130)])  # lines 20-23
add_polygon(sketch19, [(-250, 90), (-250, 70), (250, 70), (250, 90)])  # lines 24-27
add_polygon(sketch19, [(-250, 50), (-250, 30), (250, 30), (250, 50)])  # lines 28-31
add_polygon(sketch19, [(-250, 10), (-250, -10), (250, -10), (250, 10)])  # lines 32-35
add_polygon(sketch19, [(-250, -30), (-250, -50), (250, -50), (250, -30)])  # lines 36-39
add_polygon(sketch19, [(-250, -70), (-250, -90), (250, -90), (250, -70)])  # lines 40-43
add_polygon(sketch19, [(-250, -110), (-250, -130), (250, -130), (250, -110)])  # lines 44-47
add_polygon(sketch19, [(-250, -150), (-250, -170), (250, -170), (250, -150)])  # lines 48-51
add_polygon(sketch19, [(-250, -190), (-250, -210), (250, -210), (250, -190)])  # lines 52-55
add_polygon(sketch19, [(-250, -230), (-250, -250), (250, -250), (250, -230)])  # lines 56-59
add_polygon(sketch19, [(-250, -270), (-250, -290), (250, -290), (250, -270)])  # lines 60-63
add_polygon(sketch19, [(-250, -310), (-250, -330), (250, -330), (250, -310)])  # lines 64-67
sketch19.addConstraint(Sketcher.Constraint("Vertical", 0))
sketch19.addConstraint(Sketcher.Constraint("Horizontal", 1))
sketch19.addConstraint(Sketcher.Constraint("Vertical", 2))
sketch19.addConstraint(Sketcher.Constraint("Horizontal", 3))
sketch19.addConstraint(Sketcher.Constraint("Vertical", 4))
sketch19.addConstraint(Sketcher.Constraint("Horizontal", 5))
sketch19.addConstraint(Sketcher.Constraint("Vertical", 6))
sketch19.addConstraint(Sketcher.Constraint("Horizontal", 7))
sketch19.addConstraint(Sketcher.Constraint("Vertical", 8))
sketch19.addConstraint(Sketcher.Constraint("Horizontal", 9))
sketch19.addConstraint(Sketcher.Constraint("Vertical", 10))
sketch19.addConstraint(Sketcher.Constraint("Horizontal", 11))
sketch19.addConstraint(Sketcher.Constraint("Vertical", 12))
sketch19.addConstraint(Sketcher.Constraint("Horizontal", 13))
sketch19.addConstraint(Sketcher.Constraint("Vertical", 14))
sketch19.addConstraint(Sketcher.Constraint("Horizontal", 15))
sketch19.addConstraint(Sketcher.Constraint("Vertical", 16))
sketch19.addConstraint(Sketcher.Constraint("Horizontal", 17))
sketch19.addConstraint(Sketcher.Constraint("Vertical", 18))
sketch19.addConstraint(Sketcher.Constraint("Horizontal", 19))
sketch19.addConstraint(Sketcher.Constraint("Vertical", 20))
sketch19.addConstraint(Sketcher.Constraint("Horizontal", 21))
sketch19.addConstraint(Sketcher.Constraint("Vertical", 22))
sketch19.addConstraint(Sketcher.Constraint("Horizontal", 23))
sketch19.addConstraint(Sketcher.Constraint("Vertical", 24))
sketch19.addConstraint(Sketcher.Constraint("Horizontal", 25))
sketch19.addConstraint(Sketcher.Constraint("Vertical", 26))
sketch19.addConstraint(Sketcher.Constraint("Horizontal", 27))
sketch19.addConstraint(Sketcher.Constraint("Vertical", 28))
sketch19.addConstraint(Sketcher.Constraint("Horizontal", 29))
sketch19.addConstraint(Sketcher.Constraint("Vertical", 30))
sketch19.addConstraint(Sketcher.Constraint("Horizontal", 31))
sketch19.addConstraint(Sketcher.Constraint("Vertical", 32))
sketch19.addConstraint(Sketcher.Constraint("Horizontal", 33))
sketch19.addConstraint(Sketcher.Constraint("Vertical", 34))
sketch19.addConstraint(Sketcher.Constraint("Horizontal", 35))
sketch19.addConstraint(Sketcher.Constraint("Vertical", 36))
sketch19.addConstraint(Sketcher.Constraint("Horizontal", 37))
sketch19.addConstraint(Sketcher.Constraint("Vertical", 38))
sketch19.addConstraint(Sketcher.Constraint("Horizontal", 39))
sketch19.addConstraint(Sketcher.Constraint("Vertical", 40))
sketch19.addConstraint(Sketcher.Constraint("Horizontal", 41))
sketch19.addConstraint(Sketcher.Constraint("Vertical", 42))
sketch19.addConstraint(Sketcher.Constraint("Horizontal", 43))
sketch19.addConstraint(Sketcher.Constraint("Vertical", 44))
sketch19.addConstraint(Sketcher.Constraint("Horizontal", 45))
sketch19.addConstraint(Sketcher.Constraint("Vertical", 46))
sketch19.addConstraint(Sketcher.Constraint("Horizontal", 47))
sketch19.addConstraint(Sketcher.Constraint("Vertical", 48))
sketch19.addConstraint(Sketcher.Constraint("Horizontal", 49))
sketch19.addConstraint(Sketcher.Constraint("Vertical", 50))
sketch19.addConstraint(Sketcher.Constraint("Horizontal", 51))
sketch19.addConstraint(Sketcher.Constraint("Vertical", 52))
sketch19.addConstraint(Sketcher.Constraint("Horizontal", 53))
sketch19.addConstraint(Sketcher.Constraint("Vertical", 54))
sketch19.addConstraint(Sketcher.Constraint("Horizontal", 55))
sketch19.addConstraint(Sketcher.Constraint("Vertical", 56))
sketch19.addConstraint(Sketcher.Constraint("Horizontal", 57))
sketch19.addConstraint(Sketcher.Constraint("Vertical", 58))
sketch19.addConstraint(Sketcher.Constraint("Horizontal", 59))
sketch19.addConstraint(Sketcher.Constraint("Vertical", 60))
sketch19.addConstraint(Sketcher.Constraint("Horizontal", 61))
sketch19.addConstraint(Sketcher.Constraint("Vertical", 62))
sketch19.addConstraint(Sketcher.Constraint("Horizontal", 63))
sketch19.addConstraint(Sketcher.Constraint("Vertical", 64))
sketch19.addConstraint(Sketcher.Constraint("Horizontal", 65))
sketch19.addConstraint(Sketcher.Constraint("Vertical", 66))
sketch19.addConstraint(Sketcher.Constraint("Horizontal", 67))
sketch19.addConstraint(Sketcher.Constraint("Symmetric", 32, 2, 34, 2, -1, 1))
sketch19.addConstraint(Sketcher.Constraint("Symmetric", 30, 2, 36, 2, -1, 1))
sketch19.addConstraint(Sketcher.Constraint("Symmetric", 28, 2, 38, 2, -1, 1))
sketch19.addConstraint(Sketcher.Constraint("Symmetric", 26, 2, 40, 2, -1, 1))
sketch19.addConstraint(Sketcher.Constraint("Symmetric", 24, 2, 42, 2, -1, 1))
sketch19.addConstraint(Sketcher.Constraint("Symmetric", 22, 2, 44, 2, -1, 1))
sketch19.addConstraint(Sketcher.Constraint("Symmetric", 20, 2, 46, 2, -1, 1))
sketch19.addConstraint(Sketcher.Constraint("Symmetric", 18, 2, 48, 2, -1, 1))
sketch19.addConstraint(Sketcher.Constraint("Symmetric", 16, 2, 50, 2, -1, 1))
sketch19.addConstraint(Sketcher.Constraint("Symmetric", 14, 2, 52, 2, -1, 1))
sketch19.addConstraint(Sketcher.Constraint("Symmetric", 12, 2, 54, 2, -1, 1))
sketch19.addConstraint(Sketcher.Constraint("Symmetric", 10, 2, 56, 2, -1, 1))
sketch19.addConstraint(Sketcher.Constraint("Symmetric", 8, 2, 58, 2, -1, 1))
sketch19.addConstraint(Sketcher.Constraint("Symmetric", 6, 2, 60, 2, -1, 1))
sketch19.addConstraint(Sketcher.Constraint("Symmetric", 4, 2, 62, 2, -1, 1))
sketch19.addConstraint(Sketcher.Constraint("Symmetric", 2, 2, 64, 2, -1, 1))
sketch19.addConstraint(Sketcher.Constraint("Symmetric", 0, 2, 66, 2, -1, 1))
sketch19.addConstraint(Sketcher.Constraint("Vertical", 3, 2, 4, 2))
sketch19.addConstraint(Sketcher.Constraint("Vertical", 2, 2, 5, 2))
sketch19.addConstraint(Sketcher.Constraint("Vertical", 7, 2, 8, 2))
sketch19.addConstraint(Sketcher.Constraint("Vertical", 6, 2, 9, 2))
sketch19.addConstraint(Sketcher.Constraint("Vertical", 11, 2, 12, 2))
sketch19.addConstraint(Sketcher.Constraint("Vertical", 10, 2, 13, 2))
sketch19.addConstraint(Sketcher.Constraint("Vertical", 15, 2, 16, 2))
sketch19.addConstraint(Sketcher.Constraint("Vertical", 14, 2, 17, 2))
sketch19.addConstraint(Sketcher.Constraint("Vertical", 19, 2, 20, 2))
sketch19.addConstraint(Sketcher.Constraint("Vertical", 18, 2, 21, 2))
sketch19.addConstraint(Sketcher.Constraint("Vertical", 23, 2, 24, 2))
sketch19.addConstraint(Sketcher.Constraint("Vertical", 22, 2, 25, 2))
sketch19.addConstraint(Sketcher.Constraint("Vertical", 27, 2, 28, 2))
sketch19.addConstraint(Sketcher.Constraint("Vertical", 26, 2, 29, 2))
sketch19.addConstraint(Sketcher.Constraint("Vertical", 31, 2, 32, 2))
sketch19.addConstraint(Sketcher.Constraint("Vertical", 30, 2, 33, 2))
sketch19.addConstraint(Sketcher.Constraint("Equal", 2, 4))
sketch19.addConstraint(Sketcher.Constraint("Equal", 6, 8))
sketch19.addConstraint(Sketcher.Constraint("Equal", 10, 12))
sketch19.addConstraint(Sketcher.Constraint("Equal", 14, 16))
sketch19.addConstraint(Sketcher.Constraint("Equal", 18, 20))
sketch19.addConstraint(Sketcher.Constraint("Equal", 22, 24))
sketch19.addConstraint(Sketcher.Constraint("Equal", 26, 28))
sketch19.addConstraint(Sketcher.Constraint("Equal", 30, 32))
sketch19.addConstraint(Sketcher.Constraint("DistanceX", 1, 1, 1, 2, Q("500 mm")))
sketch19.addConstraint(Sketcher.Constraint("DistanceY", 0, 2, 0, 1, Q("20 mm")))
sketch19.addConstraint(Sketcher.Constraint("DistanceY", -1, 1, 0, 2, Q("310 mm")))
sketch19.addConstraint(Sketcher.Constraint("DistanceY", -1, 1, 4, 2, Q("270 mm")))
sketch19.addConstraint(Sketcher.Constraint("DistanceY", -1, 1, 8, 2, Q("230 mm")))
sketch19.addConstraint(Sketcher.Constraint("DistanceY", -1, 1, 12, 2, Q("190 mm")))
sketch19.addConstraint(Sketcher.Constraint("DistanceY", -1, 1, 16, 2, Q("150 mm")))
sketch19.addConstraint(Sketcher.Constraint("DistanceY", -1, 1, 20, 2, Q("110 mm")))
sketch19.addConstraint(Sketcher.Constraint("DistanceY", -1, 1, 24, 2, Q("70 mm")))
sketch19.addConstraint(Sketcher.Constraint("DistanceY", -1, 1, 28, 2, Q("30 mm")))
sketch19.setExpression("Constraints[177]", "Params.sketch19_width")
sketch19.setExpression("Constraints[178]", "Params.sketch19_height")
pad19 = doc.addObject("PartDesign::Pad", "Pad018")
body.addObject(pad19)
pad19.Profile = sketch19
pad19.setExpression("Length", "Params.pad19_length")

# Sketch on XY plane
sketch20 = doc.addObject("Sketcher::SketchObject", "Sketch019")
body.addObject(sketch20)
sketch20.AttachmentSupport = (doc.XY_Plane, [""])
sketch20.MapMode = "FlatFace"
sketch20.addGeometry(Part.Circle(App.Vector(0, 325, 0), App.Vector(0, 0, 1), 6.5), False)
sketch20.addGeometry(Part.Circle(App.Vector(0, 275, 0), App.Vector(0, 0, 1), 6.5), False)
sketch20.addConstraint(Sketcher.Constraint("Equal", 0, 1))
sketch20.addConstraint(Sketcher.Constraint("PointOnObject", 0, 3, -2))
sketch20.addConstraint(Sketcher.Constraint("PointOnObject", 1, 3, -2))
sketch20.addConstraint(Sketcher.Constraint("Diameter", 0, Q("13 mm")))
sketch20.addConstraint(Sketcher.Constraint("DistanceY", -1, 1, 0, 3, Q("325 mm")))
sketch20.addConstraint(Sketcher.Constraint("DistanceY", -1, 1, 1, 3, Q("275 mm")))
sketch20.setExpression("Constraints[3]", "Params.sketch20_diameter")
doc.recompute()
hole = doc.addObject("PartDesign::Hole", "Hole")
body.addObject(hole)
hole.Profile = sketch20
hole.ThreadType = "None"
hole.setExpression("Diameter", "Params.hole_diameter")
hole.DepthType = "ThroughAll"
hole.Reversed = True

doc.recompute()
